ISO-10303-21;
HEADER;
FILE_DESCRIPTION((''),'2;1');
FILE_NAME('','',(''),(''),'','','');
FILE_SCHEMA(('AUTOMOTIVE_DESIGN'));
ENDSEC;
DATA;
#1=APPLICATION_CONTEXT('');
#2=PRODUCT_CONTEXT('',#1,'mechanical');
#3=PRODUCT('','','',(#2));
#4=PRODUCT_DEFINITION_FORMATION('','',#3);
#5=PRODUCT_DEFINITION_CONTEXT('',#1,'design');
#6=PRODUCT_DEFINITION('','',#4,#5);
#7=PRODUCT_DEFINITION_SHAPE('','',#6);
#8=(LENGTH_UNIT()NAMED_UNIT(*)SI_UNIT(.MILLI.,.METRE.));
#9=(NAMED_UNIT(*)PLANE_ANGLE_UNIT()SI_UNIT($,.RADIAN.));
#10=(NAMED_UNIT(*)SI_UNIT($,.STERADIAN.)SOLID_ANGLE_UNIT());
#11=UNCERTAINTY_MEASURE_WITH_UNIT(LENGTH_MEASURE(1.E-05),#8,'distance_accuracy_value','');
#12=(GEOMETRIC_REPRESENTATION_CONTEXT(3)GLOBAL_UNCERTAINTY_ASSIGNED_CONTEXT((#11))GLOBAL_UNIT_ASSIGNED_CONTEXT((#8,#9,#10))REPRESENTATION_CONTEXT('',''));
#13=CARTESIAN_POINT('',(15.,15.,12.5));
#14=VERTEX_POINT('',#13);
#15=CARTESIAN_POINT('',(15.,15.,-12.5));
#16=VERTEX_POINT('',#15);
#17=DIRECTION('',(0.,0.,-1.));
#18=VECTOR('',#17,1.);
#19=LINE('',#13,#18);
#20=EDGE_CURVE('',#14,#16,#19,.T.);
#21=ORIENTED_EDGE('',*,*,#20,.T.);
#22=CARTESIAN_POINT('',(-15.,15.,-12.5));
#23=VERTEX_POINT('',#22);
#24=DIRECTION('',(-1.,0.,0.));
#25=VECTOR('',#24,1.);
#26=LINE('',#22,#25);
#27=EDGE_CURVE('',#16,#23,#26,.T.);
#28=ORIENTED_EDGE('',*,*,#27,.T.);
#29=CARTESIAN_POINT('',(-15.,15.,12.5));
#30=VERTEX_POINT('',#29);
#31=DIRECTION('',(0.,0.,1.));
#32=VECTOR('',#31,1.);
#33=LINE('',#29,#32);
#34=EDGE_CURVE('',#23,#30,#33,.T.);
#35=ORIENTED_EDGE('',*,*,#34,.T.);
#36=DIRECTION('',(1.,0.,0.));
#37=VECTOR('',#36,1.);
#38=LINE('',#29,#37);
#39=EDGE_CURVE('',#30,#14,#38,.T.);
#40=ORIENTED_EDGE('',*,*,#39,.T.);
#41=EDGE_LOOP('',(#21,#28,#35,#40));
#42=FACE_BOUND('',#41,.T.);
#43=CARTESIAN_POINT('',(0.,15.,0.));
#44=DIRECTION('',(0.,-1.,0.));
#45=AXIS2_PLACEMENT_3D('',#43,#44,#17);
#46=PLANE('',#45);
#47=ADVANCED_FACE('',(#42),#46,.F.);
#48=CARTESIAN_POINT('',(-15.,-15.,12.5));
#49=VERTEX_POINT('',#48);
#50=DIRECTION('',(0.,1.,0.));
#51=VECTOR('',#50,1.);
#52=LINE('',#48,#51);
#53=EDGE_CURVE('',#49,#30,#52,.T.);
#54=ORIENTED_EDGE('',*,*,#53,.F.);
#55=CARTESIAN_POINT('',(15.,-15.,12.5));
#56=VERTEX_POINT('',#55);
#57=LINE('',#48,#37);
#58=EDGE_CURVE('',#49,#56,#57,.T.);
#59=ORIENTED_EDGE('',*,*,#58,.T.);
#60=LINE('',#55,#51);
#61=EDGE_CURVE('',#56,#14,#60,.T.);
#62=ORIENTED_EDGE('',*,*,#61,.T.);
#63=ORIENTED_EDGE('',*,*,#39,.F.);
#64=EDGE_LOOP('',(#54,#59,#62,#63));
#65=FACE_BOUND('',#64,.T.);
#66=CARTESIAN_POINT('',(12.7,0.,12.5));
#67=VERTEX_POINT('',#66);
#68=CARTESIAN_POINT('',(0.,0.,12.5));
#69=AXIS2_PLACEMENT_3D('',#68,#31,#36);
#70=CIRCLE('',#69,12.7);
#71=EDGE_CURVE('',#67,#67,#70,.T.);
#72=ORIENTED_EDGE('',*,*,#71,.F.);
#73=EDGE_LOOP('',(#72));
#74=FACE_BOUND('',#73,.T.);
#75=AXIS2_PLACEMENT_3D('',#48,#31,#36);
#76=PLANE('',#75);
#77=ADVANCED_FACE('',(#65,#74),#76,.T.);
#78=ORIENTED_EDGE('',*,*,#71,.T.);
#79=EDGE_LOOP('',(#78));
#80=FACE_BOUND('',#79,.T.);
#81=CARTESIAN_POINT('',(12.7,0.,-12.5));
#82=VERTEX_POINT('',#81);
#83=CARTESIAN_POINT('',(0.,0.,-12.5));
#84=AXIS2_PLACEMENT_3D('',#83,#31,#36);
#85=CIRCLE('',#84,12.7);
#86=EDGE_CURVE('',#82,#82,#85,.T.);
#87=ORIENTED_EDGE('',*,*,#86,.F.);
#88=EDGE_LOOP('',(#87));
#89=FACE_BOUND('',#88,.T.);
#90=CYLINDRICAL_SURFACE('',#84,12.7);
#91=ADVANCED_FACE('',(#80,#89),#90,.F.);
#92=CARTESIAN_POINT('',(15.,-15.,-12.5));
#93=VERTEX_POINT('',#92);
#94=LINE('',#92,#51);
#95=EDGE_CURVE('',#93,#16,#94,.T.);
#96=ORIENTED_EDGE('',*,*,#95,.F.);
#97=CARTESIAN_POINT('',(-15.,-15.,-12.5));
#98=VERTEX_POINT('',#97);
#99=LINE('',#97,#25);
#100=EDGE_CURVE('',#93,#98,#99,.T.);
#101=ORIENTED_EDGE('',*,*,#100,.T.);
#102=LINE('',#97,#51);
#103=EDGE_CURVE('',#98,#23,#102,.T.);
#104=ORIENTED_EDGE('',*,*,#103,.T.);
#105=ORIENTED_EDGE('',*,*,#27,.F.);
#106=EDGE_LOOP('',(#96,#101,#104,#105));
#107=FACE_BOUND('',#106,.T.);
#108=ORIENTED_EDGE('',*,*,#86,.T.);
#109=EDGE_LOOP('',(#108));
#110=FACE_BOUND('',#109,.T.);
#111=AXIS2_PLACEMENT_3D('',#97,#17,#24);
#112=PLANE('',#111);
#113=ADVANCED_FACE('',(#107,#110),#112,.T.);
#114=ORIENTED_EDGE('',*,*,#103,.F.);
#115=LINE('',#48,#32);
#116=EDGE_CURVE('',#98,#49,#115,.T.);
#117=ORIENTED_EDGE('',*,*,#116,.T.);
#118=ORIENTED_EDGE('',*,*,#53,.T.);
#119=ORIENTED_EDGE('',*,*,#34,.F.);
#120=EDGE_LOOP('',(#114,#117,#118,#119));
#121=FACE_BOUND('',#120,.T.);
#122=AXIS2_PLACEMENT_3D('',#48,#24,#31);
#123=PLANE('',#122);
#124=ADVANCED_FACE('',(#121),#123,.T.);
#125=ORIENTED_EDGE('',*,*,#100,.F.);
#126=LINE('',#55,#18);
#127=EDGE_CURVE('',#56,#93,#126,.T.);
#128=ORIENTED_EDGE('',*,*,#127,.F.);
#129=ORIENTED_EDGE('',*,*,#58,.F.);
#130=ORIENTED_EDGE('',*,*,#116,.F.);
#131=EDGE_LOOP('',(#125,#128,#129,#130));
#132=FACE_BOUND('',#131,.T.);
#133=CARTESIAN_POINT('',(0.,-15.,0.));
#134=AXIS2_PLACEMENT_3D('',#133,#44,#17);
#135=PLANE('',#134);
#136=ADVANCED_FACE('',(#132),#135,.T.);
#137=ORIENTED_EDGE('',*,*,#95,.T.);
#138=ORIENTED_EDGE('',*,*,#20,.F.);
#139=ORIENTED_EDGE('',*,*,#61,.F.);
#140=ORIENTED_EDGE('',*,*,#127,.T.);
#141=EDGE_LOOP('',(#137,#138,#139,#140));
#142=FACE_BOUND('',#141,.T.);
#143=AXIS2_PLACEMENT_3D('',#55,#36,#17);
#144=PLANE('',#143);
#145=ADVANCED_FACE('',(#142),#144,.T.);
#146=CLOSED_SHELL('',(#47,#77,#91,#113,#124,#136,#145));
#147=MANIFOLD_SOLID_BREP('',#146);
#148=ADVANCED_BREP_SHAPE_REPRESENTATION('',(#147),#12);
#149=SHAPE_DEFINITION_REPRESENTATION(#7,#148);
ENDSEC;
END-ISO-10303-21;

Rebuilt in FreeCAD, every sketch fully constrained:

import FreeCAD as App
import Part
import Sketcher

V = App.Vector
Q = App.Units.Quantity

doc = App.newDocument("Part")
body = doc.addObject("PartDesign::Body", "Body")

# Sketch on XZ plane
sketch1 = doc.addObject("Sketcher::SketchObject", "Sketch")
body.addObject(sketch1)
sketch1.AttachmentSupport = (doc.XZ_Plane, [""])
sketch1.MapMode = "FlatFace"
sketch1.addGeometry([
    Part.LineSegment(V(-15, -12, 0), V(-15, 12, 0)),
    Part.LineSegment(V(-15, 12, 0), V(15, 12, 0)),
    Part.LineSegment(V(15, 12, 0), V(15, -12, 0)),
    Part.LineSegment(V(15, -12, 0), V(-15, -12, 0)),
], False)
sketch1.addConstraint([
    Sketcher.Constraint("Coincident", 0, 2, 1, 1),
    Sketcher.Constraint("Coincident", 1, 2, 2, 1),
    Sketcher.Constraint("Coincident", 2, 2, 3, 1),
    Sketcher.Constraint("Coincident", 3, 2, 0, 1),
    Sketcher.Constraint("Vertical", 0),
    Sketcher.Constraint("Horizontal", 1),
    Sketcher.Constraint("Vertical", 2),
    Sketcher.Constraint("Horizontal", 3),
    Sketcher.Constraint("Symmetric", 0, 2, 2, 2, -1, 1),
    Sketcher.Constraint("DistanceX", 1, 1, 1, 2, Q("30 mm")),
    Sketcher.Constraint("DistanceY", 0, 1, 0, 2, Q("25 mm")),
])
pad1 = doc.addObject("PartDesign::Pad", "Pad")
body.addObject(pad1)
pad1.Profile = sketch1
pad1.Type = "TwoLengths"
pad1.Length = 15
pad1.Length2 = 15
pad1.Reversed = True

# Sketch on XY plane
sketch2 = doc.addObject("Sketcher::SketchObject", "Sketch001")
body.addObject(sketch2)
sketch2.AttachmentSupport = (doc.XY_Plane, [""])
sketch2.MapMode = "FlatFace"
sketch2.AttachmentOffset = App.Placement(V(0, 0, 12.5), App.Rotation())
sketch2.addGeometry(Part.Circle(V(0, 0, 0), V(0, 0, 1), 13), False)
sketch2.addConstraint([
    Sketcher.Constraint("Coincident", 0, 3, -1, 1),
    Sketcher.Constraint("Diameter", 0, Q("25.4 mm")),
])
pocket1 = doc.addObject("PartDesign::Pocket", "Pocket")
body.addObject(pocket1)
pocket1.Profile = sketch2
pocket1.Type = "ThroughAll"

doc.recompute()
